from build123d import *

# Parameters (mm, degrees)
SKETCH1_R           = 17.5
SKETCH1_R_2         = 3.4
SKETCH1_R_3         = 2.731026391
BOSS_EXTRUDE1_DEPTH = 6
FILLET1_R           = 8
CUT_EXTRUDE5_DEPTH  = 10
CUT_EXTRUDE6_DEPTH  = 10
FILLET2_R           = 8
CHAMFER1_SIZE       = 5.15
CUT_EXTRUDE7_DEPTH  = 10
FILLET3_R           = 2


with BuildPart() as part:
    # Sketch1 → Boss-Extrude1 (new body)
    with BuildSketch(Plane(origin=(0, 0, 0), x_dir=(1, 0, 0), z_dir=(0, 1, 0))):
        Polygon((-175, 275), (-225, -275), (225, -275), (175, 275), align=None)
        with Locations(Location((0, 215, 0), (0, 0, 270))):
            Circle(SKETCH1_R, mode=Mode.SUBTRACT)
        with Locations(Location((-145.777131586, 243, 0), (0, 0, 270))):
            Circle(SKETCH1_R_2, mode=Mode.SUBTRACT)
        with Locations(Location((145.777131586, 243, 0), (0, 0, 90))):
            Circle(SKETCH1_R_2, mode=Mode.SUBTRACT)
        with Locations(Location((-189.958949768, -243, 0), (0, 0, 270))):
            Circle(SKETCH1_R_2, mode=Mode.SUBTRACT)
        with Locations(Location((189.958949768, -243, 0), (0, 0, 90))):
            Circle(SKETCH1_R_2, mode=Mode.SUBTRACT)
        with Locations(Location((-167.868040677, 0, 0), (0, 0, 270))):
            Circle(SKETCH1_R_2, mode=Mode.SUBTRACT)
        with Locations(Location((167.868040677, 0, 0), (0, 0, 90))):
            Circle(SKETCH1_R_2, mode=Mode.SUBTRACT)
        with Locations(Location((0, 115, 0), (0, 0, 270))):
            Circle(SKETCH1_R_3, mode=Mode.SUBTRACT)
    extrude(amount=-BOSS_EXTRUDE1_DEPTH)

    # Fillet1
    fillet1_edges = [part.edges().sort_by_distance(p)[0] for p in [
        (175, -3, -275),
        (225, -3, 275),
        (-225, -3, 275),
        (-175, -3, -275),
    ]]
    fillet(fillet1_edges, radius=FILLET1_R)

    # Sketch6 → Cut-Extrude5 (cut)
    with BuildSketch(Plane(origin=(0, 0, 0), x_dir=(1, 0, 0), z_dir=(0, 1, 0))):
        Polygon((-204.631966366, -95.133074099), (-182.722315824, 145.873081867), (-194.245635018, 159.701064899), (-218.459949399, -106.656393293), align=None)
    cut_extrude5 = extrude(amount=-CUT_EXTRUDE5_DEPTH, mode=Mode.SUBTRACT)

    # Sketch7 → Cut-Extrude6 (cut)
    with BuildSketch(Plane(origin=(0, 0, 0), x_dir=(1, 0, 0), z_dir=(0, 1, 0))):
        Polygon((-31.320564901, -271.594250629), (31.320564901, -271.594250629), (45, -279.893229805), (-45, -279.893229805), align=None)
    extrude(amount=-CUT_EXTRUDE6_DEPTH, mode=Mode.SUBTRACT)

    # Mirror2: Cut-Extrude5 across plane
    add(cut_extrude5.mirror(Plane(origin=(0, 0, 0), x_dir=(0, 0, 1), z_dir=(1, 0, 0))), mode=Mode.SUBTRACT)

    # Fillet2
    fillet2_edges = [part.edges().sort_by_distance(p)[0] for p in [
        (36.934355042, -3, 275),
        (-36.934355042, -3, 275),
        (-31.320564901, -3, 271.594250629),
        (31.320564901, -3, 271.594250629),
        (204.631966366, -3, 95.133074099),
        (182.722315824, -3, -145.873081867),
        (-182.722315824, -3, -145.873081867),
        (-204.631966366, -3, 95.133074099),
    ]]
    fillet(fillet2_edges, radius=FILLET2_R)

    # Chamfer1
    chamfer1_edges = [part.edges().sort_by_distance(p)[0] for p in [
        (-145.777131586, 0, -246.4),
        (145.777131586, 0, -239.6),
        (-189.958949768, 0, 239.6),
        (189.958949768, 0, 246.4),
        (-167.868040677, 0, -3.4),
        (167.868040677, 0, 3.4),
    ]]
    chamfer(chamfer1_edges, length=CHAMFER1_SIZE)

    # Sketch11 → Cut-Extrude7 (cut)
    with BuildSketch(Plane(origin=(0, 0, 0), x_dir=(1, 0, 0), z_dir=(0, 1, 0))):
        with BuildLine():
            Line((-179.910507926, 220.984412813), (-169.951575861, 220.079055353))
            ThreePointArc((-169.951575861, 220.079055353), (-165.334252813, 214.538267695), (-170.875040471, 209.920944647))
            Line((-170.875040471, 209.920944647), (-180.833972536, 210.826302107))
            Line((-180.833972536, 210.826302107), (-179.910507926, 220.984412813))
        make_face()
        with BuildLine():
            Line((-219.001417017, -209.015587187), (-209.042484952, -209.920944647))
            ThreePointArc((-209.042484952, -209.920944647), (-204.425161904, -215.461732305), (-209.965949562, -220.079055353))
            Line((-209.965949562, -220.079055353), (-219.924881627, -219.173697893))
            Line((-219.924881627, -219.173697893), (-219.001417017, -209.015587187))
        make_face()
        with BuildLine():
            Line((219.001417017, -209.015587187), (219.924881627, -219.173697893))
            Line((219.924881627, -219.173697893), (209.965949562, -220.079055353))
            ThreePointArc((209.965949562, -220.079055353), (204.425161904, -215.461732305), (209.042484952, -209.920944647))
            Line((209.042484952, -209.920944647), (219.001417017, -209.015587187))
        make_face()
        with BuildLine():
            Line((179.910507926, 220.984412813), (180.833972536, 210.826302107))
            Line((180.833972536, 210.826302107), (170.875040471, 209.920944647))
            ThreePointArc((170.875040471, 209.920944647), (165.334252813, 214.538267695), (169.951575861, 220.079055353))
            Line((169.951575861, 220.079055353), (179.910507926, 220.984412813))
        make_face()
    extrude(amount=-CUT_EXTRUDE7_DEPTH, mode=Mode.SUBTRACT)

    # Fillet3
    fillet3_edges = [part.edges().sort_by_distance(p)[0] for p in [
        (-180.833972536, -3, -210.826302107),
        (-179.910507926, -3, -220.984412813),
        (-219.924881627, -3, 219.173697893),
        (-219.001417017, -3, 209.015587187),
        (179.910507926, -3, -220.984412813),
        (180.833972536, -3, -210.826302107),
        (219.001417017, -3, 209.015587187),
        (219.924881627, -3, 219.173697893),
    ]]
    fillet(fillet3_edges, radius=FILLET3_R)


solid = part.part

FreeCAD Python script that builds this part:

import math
import FreeCAD as App
import Part
import Sketcher

V = App.Vector


def edges_at(feature, points):
    """Names of the edges that pass closest to the given points."""
    edges = feature.Shape.Edges
    near = lambda p: min(range(len(edges)), key=lambda i: edges[i].distToShape(Part.Vertex(*p))[0])
    return sorted({f"Edge{near(p) + 1}" for p in points})


def add_polygon(sketch, points):
    """Adds a closed chain of lines whose ends are joined by coincident constraints."""
    first, n = sketch.GeometryCount, len(points)
    for a, b in zip(points, points[1:] + points[:1]):
        sketch.addGeometry(Part.LineSegment(App.Vector(*a, 0), App.Vector(*b, 0)), False)
    for i in range(n):
        sketch.addConstraint(Sketcher.Constraint("Coincident", first + i, 2, first + (i + 1) % n, 1))

doc = App.newDocument("Part")
params = doc.addObject("Spreadsheet::Sheet", "Params")
for row, (alias, value) in enumerate([
    ("sketch1_diameter", "35 mm"),
    ("sketch1_diameter2", "6.8 mm"),
    ("sketch1_width", "450 mm"),
    ("sketch1_width2", "350 mm"),
    ("pad1_length", "6 mm"),
    ("fillet_radius", "8 mm"),
    ("sketch2_length", "242 mm"),
    ("sketch2_length2", "18 mm"),
    ("pocket1_length", "10 mm"),
    ("sketch3_width", "90 mm"),
    ("sketch3_length", "16 mm"),
    ("pocket2_length", "10 mm"),
    ("fillet2_radius", "8 mm"),
    ("chamfer_size", "5.15 mm"),
    ("sketch4_radius", "5.1 mm"),
    ("sketch4_length", "10 mm"),
    ("pocket3_length", "10 mm"),
    ("fillet3_radius", "2 mm"),
], start=1):
    params.set(f"A{row}", alias)
    params.set(f"B{row}", "=" + value)
    params.setAlias(f"B{row}", alias)

body = doc.addObject("PartDesign::Body", "Body")

sketch1 = body.newObject("Sketcher::SketchObject", "Sketch")
sketch1.AttachmentSupport = (doc.getObject("XZ_Plane"), [""])
sketch1.MapMode = "FlatFace"
add_polygon(sketch1, [(-175, -275), (-225, 275), (225, 275), (175, -275)])
sketch1.addGeometry(Part.Circle(V(-190, 243, 0), V(0, 0, 1), 3.4), False)
sketch1.addGeometry(Part.Circle(V(190, 243, 0), V(0, 0, 1), 3.4), False)
sketch1.addGeometry(Part.Circle(V(-167.9, 0, 0), V(0, 0, 1), 3.4), False)
sketch1.addGeometry(Part.Circle(V(-145.8, -243, 0), V(0, 0, 1), 3.4), False)
sketch1.addGeometry(Part.Circle(V(0, -115, 0), V(0, 0, 1), 2.7), False)
sketch1.addGeometry(Part.Circle(V(167.9, 0, 0), V(0, 0, 1), 3.4), False)
sketch1.addGeometry(Part.Circle(V(0, -215, 0), V(0, 0, 1), 17.5), False)
sketch1.addGeometry(Part.Circle(V(145.8, -243, 0), V(0, 0, 1), 3.4), False)
sketch1.addConstraint(Sketcher.Constraint("Horizontal", 1))
sketch1.addConstraint(Sketcher.Constraint("Horizontal", 3))
sketch1.addConstraint(Sketcher.Constraint("Equal", 4, 5))
sketch1.addConstraint(Sketcher.Constraint("Equal", 5, 6))
sketch1.addConstraint(Sketcher.Constraint("Equal", 6, 7))
sketch1.addConstraint(Sketcher.Constraint("Equal", 7, 9))
sketch1.addConstraint(Sketcher.Constraint("Equal", 9, 11))
sketch1.addConstraint(Sketcher.Constraint("Symmetric", 6, 3, 9, 3, -1, 1))
sketch1.addConstraint(Sketcher.Constraint("Symmetric", 4, 3, 5, 3, -2))
sketch1.addConstraint(Sketcher.Constraint("Symmetric", 7, 3, 11, 3, -2))
sketch1.addConstraint(Sketcher.Constraint("PointOnObject", 6, 3, -1))
sketch1.addConstraint(Sketcher.Constraint("PointOnObject", 8, 3, -2))
sketch1.addConstraint(Sketcher.Constraint("PointOnObject", 10, 3, -2))
sketch1.addConstraint(Sketcher.Constraint("Equal", 0, 2))
sketch1.addConstraint(Sketcher.Constraint("Diameter", 10, 35.0))
sketch1.addConstraint(Sketcher.Constraint("Diameter", 4, 6.8))
sketch1.addConstraint(Sketcher.Constraint("DistanceX", 1, 1, 1, 2, 450.0))
sketch1.addConstraint(Sketcher.Constraint("DistanceX", 3, 2, 3, 1, 350.0))
sketch1.addConstraint(Sketcher.Constraint("DistanceY", -1, 1, 4, 3, 243.0))
sketch1.addConstraint(Sketcher.Constraint("DistanceY", 7, 3, -1, 1, 243.0))
sketch1.addConstraint(Sketcher.Constraint("DistanceY", 8, 3, -1, 1, 115.0))
sketch1.addConstraint(Sketcher.Constraint("DistanceY", 10, 3, -1, 1, 215.0))
sketch1.addConstraint(Sketcher.Constraint("DistanceX", 0, 2, -1, 1, 225.0))
sketch1.addConstraint(Sketcher.Constraint("DistanceY", -1, 1, 0, 2, 275.0))
sketch1.addConstraint(Sketcher.Constraint("DistanceY", 2, 2, -1, 1, 275.0))
sketch1.addConstraint(Sketcher.Constraint("Diameter", 8, 5.462053))
sketch1.addConstraint(Sketcher.Constraint("DistanceX", 4, 3, 5, 3, 379.9179))
sketch1.addConstraint(Sketcher.Constraint("DistanceX", 6, 3, -1, 1, 167.868041))
sketch1.addConstraint(Sketcher.Constraint("DistanceX", 7, 3, -1, 1, 145.777132))
sketch1.setExpression("Constraints[18]", "Params.sketch1_diameter")
sketch1.setExpression("Constraints[19]", "Params.sketch1_diameter2")
sketch1.setExpression("Constraints[20]", "Params.sketch1_width")
sketch1.setExpression("Constraints[21]", "Params.sketch1_width2")
pad1 = body.newObject("PartDesign::Pad", "Pad")
pad1.Profile = sketch1
pad1.setExpression("Length", "Params.pad1_length")
doc.recompute()

fillet = body.newObject("PartDesign::Fillet", "Fillet")
fillet.Base = (pad1, edges_at(pad1, [
    (175, -3, -275),
    (225, -3, 275),
    (-225, -3, 275),
    (-175, -3, -275),
]))
fillet.setExpression("Radius", "Params.fillet_radius")

sketch2 = body.newObject("Sketcher::SketchObject", "Sketch001")
sketch2.AttachmentSupport = (doc.getObject("XZ_Plane"), [""])
sketch2.MapMode = "FlatFace"
add_polygon(sketch2, [(-205, 95), (-183, -146), (-194, -160), (-218, 107)])
sketch2.addConstraint(Sketcher.Constraint("Parallel", 0, 2))
sketch2.addConstraint(Sketcher.Constraint("Perpendicular", 1, 3))
sketch2.addConstraint(Sketcher.Constraint("Equal", 1, 3))
sketch2.addConstraint(Sketcher.Constraint("Distance", 0, 242.0))
sketch2.addConstraint(Sketcher.Constraint("Distance", 1, 18.0))
sketch2.addConstraint(Sketcher.Constraint("DistanceY", 0, 2, -1, 1, 145.873082))
sketch2.addConstraint(Sketcher.Constraint("DistanceX", 2, 2, -1, 1, 218.459949))
sketch2.addConstraint(Sketcher.Constraint("DistanceX", 1, 2, 0, 2, 11.523319))
sketch2.setExpression("Constraints[7]", "Params.sketch2_length")
sketch2.setExpression("Constraints[8]", "Params.sketch2_length2")
pocket1 = body.newObject("PartDesign::Pocket", "Pocket")
pocket1.Profile = sketch2
pocket1.setExpression("Length", "Params.pocket1_length")
pocket1.Reversed = True

sketch3 = body.newObject("Sketcher::SketchObject", "Sketch002")
sketch3.AttachmentSupport = (doc.getObject("XZ_Plane"), [""])
sketch3.MapMode = "FlatFace"
add_polygon(sketch3, [(31, 272), (-31, 272), (-45, 280), (45, 280)])
sketch3.addConstraint(Sketcher.Constraint("Horizontal", 0))
sketch3.addConstraint(Sketcher.Constraint("Horizontal", 2))
sketch3.addConstraint(Sketcher.Constraint("Equal", 1, 3))
sketch3.addConstraint(Sketcher.Constraint("DistanceX", 2, 1, 2, 2, 90.0))
sketch3.addConstraint(Sketcher.Constraint("Distance", 1, 16.0))
sketch3.addConstraint(Sketcher.Constraint("DistanceX", 1, 2, -1, 1, 45.0))
sketch3.addConstraint(Sketcher.Constraint("DistanceX", 0, 2, 0, 1, 62.64113))
sketch3.addConstraint(Sketcher.Constraint("DistanceY", -1, 1, 0, 2, 271.594251))
sketch3.setExpression("Constraints[7]", "Params.sketch3_width")
sketch3.setExpression("Constraints[8]", "Params.sketch3_length")
pocket2 = body.newObject("PartDesign::Pocket", "Pocket001")
pocket2.Profile = sketch3
pocket2.setExpression("Length", "Params.pocket2_length")
pocket2.Reversed = True
doc.recompute()

mirrored = body.newObject("PartDesign::Mirrored", "Mirrored")
mirrored.Originals = [pocket1]
mirrored.MirrorPlane = (doc.getObject("YZ_Plane"), [""])
body.Tip = mirrored
doc.recompute()

fillet2 = body.newObject("PartDesign::Fillet", "Fillet001")
fillet2.Base = (mirrored, edges_at(mirrored, [
    (36.934, -3, 275),
    (-36.934, -3, 275),
    (-31.321, -3, 271.594),
    (31.321, -3, 271.594),
    (204.632, -3, 95.133),
    (182.722, -3, -145.873),
    (-182.722, -3, -145.873),
    (-204.632, -3, 95.133),
]))
fillet2.setExpression("Radius", "Params.fillet2_radius")
doc.recompute()

chamfer = body.newObject("PartDesign::Chamfer", "Chamfer")
chamfer.Base = (fillet2, edges_at(fillet2, [
    (-145.777, 0, -246.4),
    (145.777, 0, -239.6),
    (-189.959, 0, 239.6),
    (189.959, 0, 246.4),
    (-167.868, 0, -3.4),
    (167.868, 0, 3.4),
]))
chamfer.setExpression("Size", "Params.chamfer_size")

sketch4 = body.newObject("Sketcher::SketchObject", "Sketch003")
sketch4.AttachmentSupport = (doc.getObject("XZ_Plane"), [""])
sketch4.MapMode = "FlatFace"
sketch4.addGeometry(Part.LineSegment(V(-170, -220, 0), V(-180, -221, 0)), False)
sketch4.addGeometry(Part.LineSegment(V(-180, -221, 0), V(-181, -211, 0)), False)
sketch4.addGeometry(Part.LineSegment(V(-181, -211, 0), V(-171, -210, 0)), False)
sketch4.addGeometry(Part.ArcOfCircle(Part.Circle(V(-170, -215, 0), V(0, 0, 1), 5), math.radians(-85), math.radians(95)), False)
sketch4.addGeometry(Part.LineSegment(V(-209, 210, 0), V(-219, 209, 0)), False)
sketch4.addGeometry(Part.LineSegment(V(-219, 209, 0), V(-220, 219, 0)), False)
sketch4.addGeometry(Part.LineSegment(V(-220, 219, 0), V(-210, 220, 0)), False)
sketch4.addGeometry(Part.ArcOfCircle(Part.Circle(V(-210, 215, 0), V(0, 0, 1), 5), math.radians(-85), math.radians(95)), False)
sketch4.addGeometry(Part.LineSegment(V(220, 219, 0), V(219, 209, 0)), False)
sketch4.addGeometry(Part.LineSegment(V(219, 209, 0), V(209, 210, 0)), False)
sketch4.addGeometry(Part.ArcOfCircle(Part.Circle(V(210, 215, 0), V(0, 0, 1), 5), math.radians(85), math.radians(265)), False)
sketch4.addGeometry(Part.LineSegment(V(210, 220, 0), V(220, 219, 0)), False)
sketch4.addGeometry(Part.LineSegment(V(181, -211, 0), V(180, -221, 0)), False)
sketch4.addGeometry(Part.LineSegment(V(180, -221, 0), V(170, -220, 0)), False)
sketch4.addGeometry(Part.ArcOfCircle(Part.Circle(V(170, -215, 0), V(0, 0, 1), 5), math.radians(85), math.radians(265)), False)
sketch4.addGeometry(Part.LineSegment(V(171, -210, 0), V(181, -211, 0)), False)
sketch4.addConstraint(Sketcher.Constraint("Coincident", 0, 2, 1, 1))
sketch4.addConstraint(Sketcher.Constraint("Coincident", 1, 2, 2, 1))
sketch4.addConstraint(Sketcher.Constraint("Tangent", 2, 2, 3, 2))
sketch4.addConstraint(Sketcher.Constraint("Tangent", 3, 1, 0, 1))
sketch4.addConstraint(Sketcher.Constraint("Coincident", 4, 2, 5, 1))
sketch4.addConstraint(Sketcher.Constraint("Coincident", 5, 2, 6, 1))
sketch4.addConstraint(Sketcher.Constraint("Tangent", 6, 2, 7, 2))
sketch4.addConstraint(Sketcher.Constraint("Tangent", 7, 1, 4, 1))
sketch4.addConstraint(Sketcher.Constraint("Coincident", 8, 2, 9, 1))
sketch4.addConstraint(Sketcher.Constraint("Tangent", 9, 2, 10, 2))
sketch4.addConstraint(Sketcher.Constraint("Tangent", 10, 1, 11, 1))
sketch4.addConstraint(Sketcher.Constraint("Coincident", 11, 2, 8, 1))
sketch4.addConstraint(Sketcher.Constraint("Coincident", 12, 2, 13, 1))
sketch4.addConstraint(Sketcher.Constraint("Tangent", 13, 2, 14, 2))
sketch4.addConstraint(Sketcher.Constraint("Tangent", 14, 1, 15, 1))
sketch4.addConstraint(Sketcher.Constraint("Coincident", 15, 2, 12, 1))
sketch4.addConstraint(Sketcher.Constraint("Equal", 3, 7))
sketch4.addConstraint(Sketcher.Constraint("Equal", 7, 10))
sketch4.addConstraint(Sketcher.Constraint("Equal", 10, 14))
sketch4.addConstraint(Sketcher.Constraint("Symmetric", 7, 3, 10, 3, -2))
sketch4.addConstraint(Sketcher.Constraint("Symmetric", 3, 3, 14, 3, -2))
sketch4.addConstraint(Sketcher.Constraint("Symmetric", 4, 2, 8, 2, -2))
sketch4.addConstraint(Sketcher.Constraint("Symmetric", 5, 2, 11, 2, -2))
sketch4.addConstraint(Sketcher.Constraint("Symmetric", 0, 2, 12, 2, -2))
sketch4.addConstraint(Sketcher.Constraint("Symmetric", 1, 2, 15, 2, -2))
sketch4.addConstraint(Sketcher.Constraint("Perpendicular", 0, 1))
sketch4.addConstraint(Sketcher.Constraint("Perpendicular", 1, 2))
sketch4.addConstraint(Sketcher.Constraint("Parallel", 2, 4))
sketch4.addConstraint(Sketcher.Constraint("Perpendicular", 4, 5))
sketch4.addConstraint(Sketcher.Constraint("Perpendicular", 5, 6))
sketch4.addConstraint(Sketcher.Constraint("Equal", 2, 4))
sketch4.addConstraint(Sketcher.Constraint("Radius", 3, 5.1))
sketch4.addConstraint(Sketcher.Constraint("Distance", 0, 10.0))
sketch4.addConstraint(Sketcher.Constraint("DistanceY", 3, 3, -1, 1, 215.0))
sketch4.addConstraint(Sketcher.Constraint("DistanceY", -1, 1, 7, 3, 215.0))
sketch4.addConstraint(Sketcher.Constraint("DistanceX", 0, 2, 3, 3, 9.4972))
sketch4.addConstraint(Sketcher.Constraint("DistanceX", 5, 2, 10, 3, 429.429099))
sketch4.addConstraint(Sketcher.Constraint("DistanceX", 3, 3, -1, 1, 170.413308))
sketch4.setExpression("Constraints[31]", "Params.sketch4_radius")
sketch4.setExpression("Constraints[32]", "Params.sketch4_length")
pocket3 = body.newObject("PartDesign::Pocket", "Pocket002")
pocket3.Profile = sketch4
pocket3.setExpression("Length", "Params.pocket3_length")
pocket3.Reversed = True
doc.recompute()

fillet3 = body.newObject("PartDesign::Fillet", "Fillet002")
fillet3.Base = (pocket3, edges_at(pocket3, [
    (-180.834, -3, -210.826),
    (-179.911, -3, -220.984),
    (-219.925, -3, 219.174),
    (-219.001, -3, 209.016),
    (179.911, -3, -220.984),
    (180.834, -3, -210.826),
    (219.001, -3, 209.016),
    (219.925, -3, 219.174),
]))
fillet3.setExpression("Radius", "Params.fillet3_radius")

doc.recompute()
